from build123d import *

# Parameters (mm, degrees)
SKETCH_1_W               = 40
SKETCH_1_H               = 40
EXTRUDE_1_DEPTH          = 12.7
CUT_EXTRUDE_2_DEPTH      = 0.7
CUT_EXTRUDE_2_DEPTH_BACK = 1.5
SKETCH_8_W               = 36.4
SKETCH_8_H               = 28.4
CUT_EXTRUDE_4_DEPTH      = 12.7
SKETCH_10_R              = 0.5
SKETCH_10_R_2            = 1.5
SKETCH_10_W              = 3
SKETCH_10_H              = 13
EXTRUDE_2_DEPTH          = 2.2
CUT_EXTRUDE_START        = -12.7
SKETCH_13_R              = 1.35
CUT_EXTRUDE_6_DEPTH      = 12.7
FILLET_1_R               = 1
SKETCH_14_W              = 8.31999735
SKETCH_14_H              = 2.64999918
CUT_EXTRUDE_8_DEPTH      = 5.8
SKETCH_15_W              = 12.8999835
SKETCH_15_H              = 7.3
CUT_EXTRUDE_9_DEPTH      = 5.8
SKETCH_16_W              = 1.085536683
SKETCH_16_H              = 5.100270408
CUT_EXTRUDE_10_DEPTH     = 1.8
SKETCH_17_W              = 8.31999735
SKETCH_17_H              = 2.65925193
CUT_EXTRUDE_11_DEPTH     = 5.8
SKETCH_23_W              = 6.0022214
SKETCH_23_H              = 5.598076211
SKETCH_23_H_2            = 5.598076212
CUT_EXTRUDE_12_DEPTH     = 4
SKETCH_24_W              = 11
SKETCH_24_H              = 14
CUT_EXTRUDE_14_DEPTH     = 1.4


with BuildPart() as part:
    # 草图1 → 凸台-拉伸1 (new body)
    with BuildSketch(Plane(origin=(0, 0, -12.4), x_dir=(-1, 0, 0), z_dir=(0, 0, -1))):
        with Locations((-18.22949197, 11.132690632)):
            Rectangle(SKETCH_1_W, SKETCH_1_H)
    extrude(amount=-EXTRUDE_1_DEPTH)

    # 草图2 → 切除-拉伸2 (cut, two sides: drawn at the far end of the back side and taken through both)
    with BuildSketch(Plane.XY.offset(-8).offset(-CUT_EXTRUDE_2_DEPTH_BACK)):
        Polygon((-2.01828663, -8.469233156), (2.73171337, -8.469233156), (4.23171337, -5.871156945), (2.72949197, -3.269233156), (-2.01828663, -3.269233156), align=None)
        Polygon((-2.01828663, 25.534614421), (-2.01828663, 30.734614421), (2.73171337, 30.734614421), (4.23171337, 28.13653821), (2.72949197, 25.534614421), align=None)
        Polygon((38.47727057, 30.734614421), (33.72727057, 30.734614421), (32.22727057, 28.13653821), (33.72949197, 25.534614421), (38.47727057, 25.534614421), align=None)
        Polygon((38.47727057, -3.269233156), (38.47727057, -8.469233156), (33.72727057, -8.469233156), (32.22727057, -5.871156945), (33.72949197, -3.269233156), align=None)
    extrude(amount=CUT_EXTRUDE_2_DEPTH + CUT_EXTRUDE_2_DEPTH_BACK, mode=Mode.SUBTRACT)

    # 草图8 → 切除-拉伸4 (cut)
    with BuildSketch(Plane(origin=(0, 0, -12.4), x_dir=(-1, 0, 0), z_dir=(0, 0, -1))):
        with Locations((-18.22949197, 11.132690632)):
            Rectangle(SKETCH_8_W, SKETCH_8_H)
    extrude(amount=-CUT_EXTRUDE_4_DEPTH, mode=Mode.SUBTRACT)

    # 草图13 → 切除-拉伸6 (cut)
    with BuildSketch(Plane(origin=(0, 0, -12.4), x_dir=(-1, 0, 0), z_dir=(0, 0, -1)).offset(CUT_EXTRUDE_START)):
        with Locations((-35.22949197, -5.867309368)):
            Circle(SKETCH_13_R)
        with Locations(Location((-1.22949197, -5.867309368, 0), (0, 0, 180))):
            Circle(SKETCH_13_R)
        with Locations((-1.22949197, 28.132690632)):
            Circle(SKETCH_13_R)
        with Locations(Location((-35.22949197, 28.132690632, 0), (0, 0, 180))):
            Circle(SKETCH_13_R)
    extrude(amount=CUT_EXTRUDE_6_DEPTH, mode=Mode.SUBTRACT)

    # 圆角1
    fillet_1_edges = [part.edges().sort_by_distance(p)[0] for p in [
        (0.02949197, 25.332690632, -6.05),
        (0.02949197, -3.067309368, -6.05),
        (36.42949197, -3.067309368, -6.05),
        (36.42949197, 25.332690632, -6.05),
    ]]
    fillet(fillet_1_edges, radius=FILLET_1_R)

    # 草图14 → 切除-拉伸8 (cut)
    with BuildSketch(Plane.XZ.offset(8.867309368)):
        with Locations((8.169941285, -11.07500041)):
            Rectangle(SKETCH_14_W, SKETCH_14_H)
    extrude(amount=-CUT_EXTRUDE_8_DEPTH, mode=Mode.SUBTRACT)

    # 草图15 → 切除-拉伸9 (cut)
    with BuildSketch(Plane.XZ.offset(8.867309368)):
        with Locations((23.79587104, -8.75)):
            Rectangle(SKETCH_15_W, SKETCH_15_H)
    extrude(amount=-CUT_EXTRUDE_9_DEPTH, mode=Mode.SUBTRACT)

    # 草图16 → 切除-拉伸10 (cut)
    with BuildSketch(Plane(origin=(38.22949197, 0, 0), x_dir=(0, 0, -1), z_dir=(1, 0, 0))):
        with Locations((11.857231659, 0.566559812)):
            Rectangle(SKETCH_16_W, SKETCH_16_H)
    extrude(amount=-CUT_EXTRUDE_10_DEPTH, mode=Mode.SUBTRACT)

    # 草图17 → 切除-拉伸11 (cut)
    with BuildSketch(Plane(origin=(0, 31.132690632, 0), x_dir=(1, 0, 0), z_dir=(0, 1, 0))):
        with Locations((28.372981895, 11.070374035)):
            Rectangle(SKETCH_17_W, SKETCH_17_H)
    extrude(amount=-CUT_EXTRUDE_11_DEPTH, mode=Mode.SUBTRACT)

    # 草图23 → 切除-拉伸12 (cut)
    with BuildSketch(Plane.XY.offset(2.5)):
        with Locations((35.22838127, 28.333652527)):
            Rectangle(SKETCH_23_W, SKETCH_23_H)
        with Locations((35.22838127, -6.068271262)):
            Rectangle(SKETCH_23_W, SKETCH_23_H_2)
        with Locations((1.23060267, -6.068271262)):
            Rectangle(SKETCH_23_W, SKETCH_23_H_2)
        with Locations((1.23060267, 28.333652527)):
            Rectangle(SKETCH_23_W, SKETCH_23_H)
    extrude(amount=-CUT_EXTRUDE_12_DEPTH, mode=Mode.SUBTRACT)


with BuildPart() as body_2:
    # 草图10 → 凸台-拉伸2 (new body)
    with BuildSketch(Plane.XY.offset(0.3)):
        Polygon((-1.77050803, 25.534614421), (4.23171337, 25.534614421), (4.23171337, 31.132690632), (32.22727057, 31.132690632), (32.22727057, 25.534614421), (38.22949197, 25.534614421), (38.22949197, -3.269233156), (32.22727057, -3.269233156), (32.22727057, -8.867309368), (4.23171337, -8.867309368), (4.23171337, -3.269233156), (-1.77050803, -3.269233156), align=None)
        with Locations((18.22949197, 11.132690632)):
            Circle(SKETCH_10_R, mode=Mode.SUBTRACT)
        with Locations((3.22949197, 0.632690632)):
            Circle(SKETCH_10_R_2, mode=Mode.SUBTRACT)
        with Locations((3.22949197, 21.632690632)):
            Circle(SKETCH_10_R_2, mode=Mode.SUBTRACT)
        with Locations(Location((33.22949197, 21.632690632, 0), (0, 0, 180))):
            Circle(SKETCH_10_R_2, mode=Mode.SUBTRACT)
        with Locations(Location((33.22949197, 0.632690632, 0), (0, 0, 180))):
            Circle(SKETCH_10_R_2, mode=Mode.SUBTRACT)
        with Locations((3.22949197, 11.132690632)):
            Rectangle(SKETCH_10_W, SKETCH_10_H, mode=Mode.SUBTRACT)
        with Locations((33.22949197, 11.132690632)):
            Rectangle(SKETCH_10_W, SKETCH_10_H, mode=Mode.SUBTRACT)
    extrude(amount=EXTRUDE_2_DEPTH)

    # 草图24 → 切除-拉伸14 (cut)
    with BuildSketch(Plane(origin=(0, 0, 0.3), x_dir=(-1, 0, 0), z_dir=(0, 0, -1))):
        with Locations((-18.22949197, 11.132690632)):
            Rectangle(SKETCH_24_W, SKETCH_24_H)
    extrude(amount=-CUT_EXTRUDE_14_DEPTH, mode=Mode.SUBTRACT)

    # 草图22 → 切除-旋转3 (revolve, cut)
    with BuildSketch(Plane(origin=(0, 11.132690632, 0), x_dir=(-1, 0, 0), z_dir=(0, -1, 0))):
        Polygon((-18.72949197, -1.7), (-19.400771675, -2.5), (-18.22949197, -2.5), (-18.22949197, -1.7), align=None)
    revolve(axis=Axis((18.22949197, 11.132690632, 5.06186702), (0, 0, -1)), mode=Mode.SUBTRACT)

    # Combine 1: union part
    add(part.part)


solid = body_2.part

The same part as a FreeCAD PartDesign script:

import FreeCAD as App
import Part
import Sketcher

V = App.Vector
Q = App.Units.Quantity


def edges_at(feature, points):
    """Names of the edges that pass closest to the given points."""
    edges = feature.Shape.Edges
    near = lambda p: min(range(len(edges)), key=lambda i: edges[i].distToShape(Part.Vertex(*p))[0])
    return sorted({f"Edge{near(p) + 1}" for p in points})


def add_polygon(sketch, points):
    """Adds a closed chain of lines whose ends are joined by coincident constraints."""
    first, n = sketch.GeometryCount, len(points)
    for a, b in zip(points, points[1:] + points[:1]):
        sketch.addGeometry(Part.LineSegment(App.Vector(*a, 0), App.Vector(*b, 0)), False)
    for i in range(n):
        sketch.addConstraint(Sketcher.Constraint("Coincident", first + i, 2, first + (i + 1) % n, 1))

doc = App.newDocument("Part")
params = doc.addObject("Spreadsheet::Sheet", "Params")
for row, (alias, value) in enumerate([
    ("sketch1_width", "40 mm"),
    ("pad1_length", "12.7 mm"),
    ("sketch2_length", "3 mm"),
    ("sketch2_height", "5.2 mm"),
    ("sketch2_width", "4.75 mm"),
    ("pocket1_length", "0.7 mm"),
    ("pocket1_length2", "1.5 mm"),
    ("sketch3_width", "36.4 mm"),
    ("sketch3_height", "28.4 mm"),
    ("pocket2_length", "12.7 mm"),
    ("sketch4_diameter", "2.7 mm"),
    ("pocket3_length", "12.7 mm"),
    ("fillet_radius", "1 mm"),
    ("sketch5_height", "2.649999 mm"),
    ("pocket4_length", "5.8 mm"),
    ("sketch6_height", "7.3 mm"),
    ("pocket5_length", "5.8 mm"),
    ("pocket6_length", "1.8 mm"),
    ("pocket7_length", "5.8 mm"),
    ("pocket8_length", "4 mm"),
    ("sketch10_diameter", "3 mm"),
    ("sketch10_diameter2", "1 mm"),
    ("sketch10_width", "3 mm"),
    ("sketch10_height", "13 mm"),
    ("pad2_length", "2.2 mm"),
    ("sketch11_width", "11 mm"),
    ("sketch11_height", "14 mm"),
    ("pocket9_length", "1.4 mm"),
    ("sketch12_width", "0.5 mm"),
    ("sketch12_height", "0.8 mm"),
    ("groove_angle", "360 deg"),
], start=1):
    params.set(f"A{row}", alias)
    params.set(f"B{row}", "=" + value)
    params.setAlias(f"B{row}", alias)

body = doc.addObject("PartDesign::Body", "Body")

# Sketch on XY plane
sketch1 = body.newObject("Sketcher::SketchObject", "Sketch")
sketch1.AttachmentSupport = (doc.getObject("XY_Plane"), [""])
sketch1.MapMode = "FlatFace"
sketch1.AttachmentOffset = App.Placement(V(0, 0, -12.4), App.Rotation())
add_polygon(sketch1, [(38.229492, 31.132691), (38.229492, -8.867309), (-1.770508, -8.867309), (-1.770508, 31.132691)])  # lines 0-3
sketch1.addConstraint(Sketcher.Constraint("Vertical", 0))
sketch1.addConstraint(Sketcher.Constraint("Horizontal", 1))
sketch1.addConstraint(Sketcher.Constraint("Vertical", 2))
sketch1.addConstraint(Sketcher.Constraint("Horizontal", 3))
sketch1.addConstraint(Sketcher.Constraint("Equal", 3, 0))
sketch1.addConstraint(Sketcher.Constraint("DistanceX", 1, 2, 1, 1, Q("40 mm")))
sketch1.addConstraint(Sketcher.Constraint("DistanceX", -1, 1, 0, 2, Q("38.229492 mm")))
sketch1.addConstraint(Sketcher.Constraint("DistanceY", 0, 2, -1, 1, Q("8.867309 mm")))
sketch1.setExpression("Constraints[9]", "Params.sketch1_width")
pad1 = body.newObject("PartDesign::Pad", "Pad")
pad1.Profile = sketch1
pad1.setExpression("Length", "Params.pad1_length")

# Sketch on XY plane
sketch2 = body.newObject("Sketcher::SketchObject", "Sketch001")
sketch2.AttachmentSupport = (doc.getObject("XY_Plane"), [""])
sketch2.MapMode = "FlatFace"
sketch2.AttachmentOffset = App.Placement(V(0, 0, -8), App.Rotation())
add_polygon(sketch2, [(-2.018287, -8.469233), (2.731713, -8.469233), (4.231713, -5.871157), (2.729492, -3.269233), (-2.018287, -3.269233)])  # lines 0-4
add_polygon(sketch2, [(-2.018287, 30.734614), (-2.018287, 25.534614), (2.729492, 25.534614), (4.231713, 28.136538), (2.731713, 30.734614)])  # lines 5-9
add_polygon(sketch2, [(38.477271, 30.734614), (33.727271, 30.734614), (32.227271, 28.136538), (33.729492, 25.534614), (38.477271, 25.534614)])  # lines 10-14
add_polygon(sketch2, [(38.477271, -8.469233), (38.477271, -3.269233), (33.729492, -3.269233), (32.227271, -5.871157), (33.727271, -8.469233)])  # lines 15-19
sketch2.addConstraint(Sketcher.Constraint("Horizontal", 0))
sketch2.addConstraint(Sketcher.Constraint("Horizontal", 3))
sketch2.addConstraint(Sketcher.Constraint("Vertical", 4))
sketch2.addConstraint(Sketcher.Constraint("Vertical", 5))
sketch2.addConstraint(Sketcher.Constraint("Horizontal", 6))
sketch2.addConstraint(Sketcher.Constraint("Horizontal", 9))
sketch2.addConstraint(Sketcher.Constraint("Horizontal", 10))
sketch2.addConstraint(Sketcher.Constraint("Horizontal", 13))
sketch2.addConstraint(Sketcher.Constraint("Vertical", 14))
sketch2.addConstraint(Sketcher.Constraint("Vertical", 15))
sketch2.addConstraint(Sketcher.Constraint("Horizontal", 16))
sketch2.addConstraint(Sketcher.Constraint("Horizontal", 19))
sketch2.addConstraint(Sketcher.Constraint("Parallel", 1, 7))
sketch2.addConstraint(Sketcher.Constraint("Parallel", 2, 8))
sketch2.addConstraint(Sketcher.Constraint("Parallel", 7, 11))
sketch2.addConstraint(Sketcher.Constraint("Parallel", 8, 12))
sketch2.addConstraint(Sketcher.Constraint("Parallel", 11, 17))
sketch2.addConstraint(Sketcher.Constraint("Parallel", 12, 18))
sketch2.addConstraint(Sketcher.Constraint("Horizontal", 9, 2, 10, 2))
sketch2.addConstraint(Sketcher.Constraint("Horizontal", 7, 2, 11, 2))
sketch2.addConstraint(Sketcher.Constraint("Horizontal", 6, 2, 12, 2))
sketch2.addConstraint(Sketcher.Constraint("Horizontal", 3, 2, 15, 2))
sketch2.addConstraint(Sketcher.Constraint("Horizontal", 1, 2, 17, 2))
sketch2.addConstraint(Sketcher.Constraint("Horizontal", 4, 2, 18, 2))
sketch2.addConstraint(Sketcher.Constraint("Vertical", 4, 2, 5, 2))
sketch2.addConstraint(Sketcher.Constraint("Vertical", 2, 2, 6, 2))
sketch2.addConstraint(Sketcher.Constraint("Vertical", 1, 2, 7, 2))
sketch2.addConstraint(Sketcher.Constraint("Vertical", 0, 2, 8, 2))
sketch2.addConstraint(Sketcher.Constraint("Vertical", 14, 2, 15, 2))
sketch2.addConstraint(Sketcher.Constraint("Vertical", 12, 2, 16, 2))
sketch2.addConstraint(Sketcher.Constraint("Vertical", 11, 2, 17, 2))
sketch2.addConstraint(Sketcher.Constraint("Equal", 9, 10))
sketch2.addConstraint(Sketcher.Constraint("Angle", 1, Q("60 deg")))
sketch2.addConstraint(Sketcher.Constraint("Distance", 1, Q("3 mm")))
sketch2.addConstraint(Sketcher.Constraint("DistanceY", 4, 2, 4, 1, Q("5.2 mm")))
sketch2.addConstraint(Sketcher.Constraint("DistanceX", 6, 2, 12, 2, Q("31 mm")))
sketch2.addConstraint(Sketcher.Constraint("DistanceX", 0, 1, 0, 2, Q("4.75 mm")))
sketch2.addConstraint(Sketcher.Constraint("DistanceX", -1, 1, 2, 2, Q("2.729492 mm")))
sketch2.addConstraint(Sketcher.Constraint("DistanceY", -1, 1, 7, 2, Q("28.136538 mm")))
sketch2.addConstraint(Sketcher.Constraint("DistanceY", 1, 2, 5, 2, Q("31.405771 mm")))
sketch2.setExpression("Constraints[53]", "Params.sketch2_length")
sketch2.setExpression("Constraints[54]", "Params.sketch2_height")
sketch2.setExpression("Constraints[56]", "Params.sketch2_width")
pocket1 = body.newObject("PartDesign::Pocket", "Pocket")
pocket1.Profile = sketch2
pocket1.Type = "TwoLengths"
pocket1.setExpression("Length", "Params.pocket1_length")
pocket1.setExpression("Length2", "Params.pocket1_length2")
pocket1.Reversed = True

# Sketch on XY plane
sketch3 = body.newObject("Sketcher::SketchObject", "Sketch002")
sketch3.AttachmentSupport = (doc.getObject("XY_Plane"), [""])
sketch3.MapMode = "FlatFace"
sketch3.AttachmentOffset = App.Placement(V(0, 0, -12.4), App.Rotation())
add_polygon(sketch3, [(36.429492, 25.332691), (36.429492, -3.067309), (0.029492, -3.067309), (0.029492, 25.332691)])  # lines 0-3
sketch3.addConstraint(Sketcher.Constraint("Vertical", 0))
sketch3.addConstraint(Sketcher.Constraint("Horizontal", 1))
sketch3.addConstraint(Sketcher.Constraint("Vertical", 2))
sketch3.addConstraint(Sketcher.Constraint("Horizontal", 3))
sketch3.addConstraint(Sketcher.Constraint("DistanceX", 1, 2, 1, 1, Q("36.4 mm")))
sketch3.addConstraint(Sketcher.Constraint("DistanceY", 0, 2, 0, 1, Q("28.4 mm")))
sketch3.addConstraint(Sketcher.Constraint("DistanceX", -1, 1, 0, 2, Q("36.429492 mm")))
sketch3.addConstraint(Sketcher.Constraint("DistanceY", 0, 2, -1, 1, Q("3.067309 mm")))
sketch3.setExpression("Constraints[8]", "Params.sketch3_width")
sketch3.setExpression("Constraints[9]", "Params.sketch3_height")
pocket2 = body.newObject("PartDesign::Pocket", "Pocket001")
pocket2.Profile = sketch3
pocket2.setExpression("Length", "Params.pocket2_length")
pocket2.Reversed = True

# Sketch on XY plane
sketch4 = body.newObject("Sketcher::SketchObject", "Sketch003")
sketch4.AttachmentSupport = (doc.getObject("XY_Plane"), [""])
sketch4.MapMode = "FlatFace"
sketch4.AttachmentOffset = App.Placement(V(0, 0, 0.3), App.Rotation())
sketch4.addGeometry(Part.Circle(V(35.229492, -5.867309, 0), V(0, 0, 1), 1.35), False)
sketch4.addGeometry(Part.Circle(V(1.229492, -5.867309, 0), V(0, 0, 1), 1.35), False)
sketch4.addGeometry(Part.Circle(V(1.229492, 28.132691, 0), V(0, 0, 1), 1.35), False)
sketch4.addGeometry(Part.Circle(V(35.229492, 28.132691, 0), V(0, 0, 1), 1.35), False)
sketch4.addConstraint(Sketcher.Constraint("Equal", 0, 1))
sketch4.addConstraint(Sketcher.Constraint("Equal", 1, 2))
sketch4.addConstraint(Sketcher.Constraint("Equal", 2, 3))
sketch4.addConstraint(Sketcher.Constraint("Horizontal", 0, 3, 1, 3))
sketch4.addConstraint(Sketcher.Constraint("Horizontal", 2, 3, 3, 3))
sketch4.addConstraint(Sketcher.Constraint("Vertical", 1, 3, 2, 3))
sketch4.addConstraint(Sketcher.Constraint("Vertical", 0, 3, 3, 3))
sketch4.addConstraint(Sketcher.Constraint("Diameter", 0, Q("2.7 mm")))
sketch4.addConstraint(Sketcher.Constraint("DistanceX", 1, 3, 0, 3, Q("34 mm")))
sketch4.addConstraint(Sketcher.Constraint("DistanceY", 1, 3, 2, 3, Q("34 mm")))
sketch4.addConstraint(Sketcher.Constraint("DistanceX", -1, 1, 0, 3, Q("35.229492 mm")))
sketch4.addConstraint(Sketcher.Constraint("DistanceY", 0, 3, -1, 1, Q("5.867309 mm")))
sketch4.setExpression("Constraints[7]", "Params.sketch4_diameter")
pocket3 = body.newObject("PartDesign::Pocket", "Pocket002")
pocket3.Profile = sketch4
pocket3.setExpression("Length", "Params.pocket3_length")
doc.recompute()

fillet = body.newObject("PartDesign::Fillet", "Fillet")
fillet.Base = (pocket3, edges_at(pocket3, [
    (0.029, 25.333, -6.05),
    (0.029, -3.067, -6.05),
    (36.429, -3.067, -6.05),
    (36.429, 25.333, -6.05),
]))
fillet.setExpression("Radius", "Params.fillet_radius")

# Sketch on XZ plane
sketch5 = body.newObject("Sketcher::SketchObject", "Sketch004")
sketch5.AttachmentSupport = (doc.getObject("XZ_Plane"), [""])
sketch5.MapMode = "FlatFace"
sketch5.AttachmentOffset = App.Placement(V(0, 0, 8.867309), App.Rotation())
add_polygon(sketch5, [(4.009943, -9.750001), (4.009943, -12.4), (12.32994, -12.4), (12.32994, -9.750001)])  # lines 0-3
sketch5.addConstraint(Sketcher.Constraint("Vertical", 0))
sketch5.addConstraint(Sketcher.Constraint("Horizontal", 1))
sketch5.addConstraint(Sketcher.Constraint("Vertical", 2))
sketch5.addConstraint(Sketcher.Constraint("Horizontal", 3))
sketch5.addConstraint(Sketcher.Constraint("DistanceY", 0, 2, 0, 1, Q("2.649999 mm")))
sketch5.addConstraint(Sketcher.Constraint("DistanceY", 0, 2, -1, 1, Q("12.4 mm")))
sketch5.addConstraint(Sketcher.Constraint("DistanceX", 1, 1, 1, 2, Q("8.319997 mm")))
sketch5.addConstraint(Sketcher.Constraint("DistanceX", -1, 1, 1, 2, Q("12.32994 mm")))
sketch5.setExpression("Constraints[8]", "Params.sketch5_height")
pocket4 = body.newObject("PartDesign::Pocket", "Pocket003")
pocket4.Profile = sketch5
pocket4.setExpression("Length", "Params.pocket4_length")

# Sketch on XZ plane
sketch6 = body.newObject("Sketcher::SketchObject", "Sketch005")
sketch6.AttachmentSupport = (doc.getObject("XZ_Plane"), [""])
sketch6.MapMode = "FlatFace"
sketch6.AttachmentOffset = App.Placement(V(0, 0, 8.867309), App.Rotation())
add_polygon(sketch6, [(17.345879, -5.1), (17.345879, -12.4), (30.245863, -12.4), (30.245863, -5.1)])  # lines 0-3
sketch6.addConstraint(Sketcher.Constraint("Vertical", 0))
sketch6.addConstraint(Sketcher.Constraint("Horizontal", 1))
sketch6.addConstraint(Sketcher.Constraint("Vertical", 2))
sketch6.addConstraint(Sketcher.Constraint("Horizontal", 3))
sketch6.addConstraint(Sketcher.Constraint("DistanceY", 0, 2, 0, 1, Q("7.3 mm")))
sketch6.addConstraint(Sketcher.Constraint("DistanceY", 0, 2, -1, 1, Q("12.4 mm")))
sketch6.addConstraint(Sketcher.Constraint("DistanceX", 1, 1, 1, 2, Q("12.899984 mm")))
sketch6.addConstraint(Sketcher.Constraint("DistanceX", -1, 1, 0, 2, Q("17.345879 mm")))
sketch6.setExpression("Constraints[8]", "Params.sketch6_height")
pocket5 = body.newObject("PartDesign::Pocket", "Pocket004")
pocket5.Profile = sketch6
pocket5.setExpression("Length", "Params.pocket5_length")

# Sketch on YZ plane
sketch7 = body.newObject("Sketcher::SketchObject", "Sketch006")
sketch7.AttachmentSupport = (doc.getObject("YZ_Plane"), [""])
sketch7.MapMode = "FlatFace"
sketch7.AttachmentOffset = App.Placement(V(0, 0, 38.229492), App.Rotation())
add_polygon(sketch7, [(3.116695, -11.314463), (-1.983575, -11.314463), (-1.983575, -12.4), (3.116695, -12.4)])  # lines 0-3
sketch7.addConstraint(Sketcher.Constraint("Horizontal", 0))
sketch7.addConstraint(Sketcher.Constraint("Vertical", 1))
sketch7.addConstraint(Sketcher.Constraint("Horizontal", 2))
sketch7.addConstraint(Sketcher.Constraint("Vertical", 3))
sketch7.addConstraint(Sketcher.Constraint("DistanceY", 1, 2, -1, 1, Q("12.4 mm")))
sketch7.addConstraint(Sketcher.Constraint("DistanceX", 0, 2, 0, 1, Q("5.10027 mm")))
sketch7.addConstraint(Sketcher.Constraint("DistanceY", 1, 2, 1, 1, Q("1.085537 mm")))
sketch7.addConstraint(Sketcher.Constraint("DistanceX", 0, 2, -1, 1, Q("1.983575 mm")))
pocket6 = body.newObject("PartDesign::Pocket", "Pocket005")
pocket6.Profile = sketch7
pocket6.setExpression("Length", "Params.pocket6_length")

# Sketch on XZ plane
sketch8 = body.newObject("Sketcher::SketchObject", "Sketch007")
sketch8.AttachmentSupport = (doc.getObject("XZ_Plane"), [""])
sketch8.MapMode = "FlatFace"
sketch8.AttachmentOffset = App.Placement(V(0, 0, -31.132691), App.Rotation())
add_polygon(sketch8, [(24.212983, -12.4), (24.212983, -9.740748), (32.532981, -9.740748), (32.532981, -12.4)])  # lines 0-3
sketch8.addConstraint(Sketcher.Constraint("Vertical", 0))
sketch8.addConstraint(Sketcher.Constraint("Horizontal", 1))
sketch8.addConstraint(Sketcher.Constraint("Vertical", 2))
sketch8.addConstraint(Sketcher.Constraint("Horizontal", 3))
sketch8.addConstraint(Sketcher.Constraint("DistanceY", 2, 2, -1, 1, Q("12.4 mm")))
sketch8.addConstraint(Sketcher.Constraint("DistanceY", 0, 1, 0, 2, Q("2.659252 mm")))
sketch8.addConstraint(Sketcher.Constraint("DistanceX", 1, 1, 1, 2, Q("8.319997 mm")))
sketch8.addConstraint(Sketcher.Constraint("DistanceX", -1, 1, 1, 2, Q("32.532981 mm")))
pocket7 = body.newObject("PartDesign::Pocket", "Pocket006")
pocket7.Profile = sketch8
pocket7.setExpression("Length", "Params.pocket7_length")
pocket7.Reversed = True

# Sketch on XY plane
sketch9 = body.newObject("Sketcher::SketchObject", "Sketch008")
sketch9.AttachmentSupport = (doc.getObject("XY_Plane"), [""])
sketch9.MapMode = "FlatFace"
sketch9.AttachmentOffset = App.Placement(V(0, 0, 2.5), App.Rotation())
add_polygon(sketch9, [(32.227271, 31.132691), (32.227271, 25.534614), (38.229492, 25.534614), (38.229492, 31.132691)])  # lines 0-3
add_polygon(sketch9, [(32.227271, -3.269233), (32.227271, -8.867309), (38.229492, -8.867309), (38.229492, -3.269233)])  # lines 4-7
add_polygon(sketch9, [(-1.770508, -3.269233), (-1.770508, -8.867309), (4.231713, -8.867309), (4.231713, -3.269233)])  # lines 8-11
add_polygon(sketch9, [(-1.770508, 31.132691), (-1.770508, 25.534614), (4.231713, 25.534614), (4.231713, 31.132691)])  # lines 12-15
sketch9.addConstraint(Sketcher.Constraint("Vertical", 0))
sketch9.addConstraint(Sketcher.Constraint("Horizontal", 1))
sketch9.addConstraint(Sketcher.Constraint("Vertical", 2))
sketch9.addConstraint(Sketcher.Constraint("Horizontal", 3))
sketch9.addConstraint(Sketcher.Constraint("Vertical", 4))
sketch9.addConstraint(Sketcher.Constraint("Horizontal", 5))
sketch9.addConstraint(Sketcher.Constraint("Vertical", 6))
sketch9.addConstraint(Sketcher.Constraint("Horizontal", 7))
sketch9.addConstraint(Sketcher.Constraint("Vertical", 8))
sketch9.addConstraint(Sketcher.Constraint("Horizontal", 9))
sketch9.addConstraint(Sketcher.Constraint("Vertical", 10))
sketch9.addConstraint(Sketcher.Constraint("Horizontal", 11))
sketch9.addConstraint(Sketcher.Constraint("Vertical", 12))
sketch9.addConstraint(Sketcher.Constraint("Horizontal", 13))
sketch9.addConstraint(Sketcher.Constraint("Vertical", 14))
sketch9.addConstraint(Sketcher.Constraint("Horizontal", 15))
sketch9.addConstraint(Sketcher.Constraint("Horizontal", 5, 2, 8, 2))
sketch9.addConstraint(Sketcher.Constraint("Horizontal", 7, 2, 10, 2))
sketch9.addConstraint(Sketcher.Constraint("Horizontal", 1, 2, 12, 2))
sketch9.addConstraint(Sketcher.Constraint("Horizontal", 3, 2, 14, 2))
sketch9.addConstraint(Sketcher.Constraint("Vertical", 3, 2, 4, 2))
sketch9.addConstraint(Sketcher.Constraint("Vertical", 2, 2, 5, 2))
sketch9.addConstraint(Sketcher.Constraint("Vertical", 11, 2, 12, 2))
sketch9.addConstraint(Sketcher.Constraint("Vertical", 10, 2, 13, 2))
sketch9.addConstraint(Sketcher.Constraint("Equal", 7, 9))
sketch9.addConstraint(Sketcher.Constraint("Equal", 2, 4))
sketch9.addConstraint(Sketcher.Constraint("DistanceY", 4, 2, 3, 2, Q("40 mm")))
sketch9.addConstraint(Sketcher.Constraint("DistanceX", 8, 2, 5, 2, Q("40 mm")))
sketch9.addConstraint(Sketcher.Constraint("DistanceX", 1, 1, 1, 2, Q("6.002221 mm")))
sketch9.addConstraint(Sketcher.Constraint("DistanceY", 0, 2, 0, 1, Q("5.598076 mm")))
sketch9.addConstraint(Sketcher.Constraint("DistanceX", -1, 1, 0, 2, Q("32.227271 mm")))
sketch9.addConstraint(Sketcher.Constraint("DistanceY", -1, 1, 2, 2, Q("31.132691 mm")))
pocket8 = body.newObject("PartDesign::Pocket", "Pocket007")
pocket8.Profile = sketch9
pocket8.setExpression("Length", "Params.pocket8_length")
body2 = doc.addObject("PartDesign::Body", "Body001")

# Sketch on XY plane
sketch10 = body2.newObject("Sketcher::SketchObject", "Sketch009")
sketch10.AttachmentSupport = (doc.getObject("XY_Plane001"), [""])
sketch10.MapMode = "FlatFace"
sketch10.AttachmentOffset = App.Placement(V(0, 0, 0.3), App.Rotation())
add_polygon(sketch10, [(4.231713, 25.534614), (-1.770508, 25.534614), (-1.770508, -3.269233), (4.231713, -3.269233), (4.231713, -8.867309), (32.227271, -8.867309), (32.227271, -3.269233), (38.229492, -3.269233), (38.229492, 25.534614), (32.227271, 25.534614), (32.227271, 31.132691), (4.231713, 31.132691)])  # lines 0-11
sketch10.addGeometry(Part.Circle(V(33.229492, 0.632691, 0), V(0, 0, 1), 1.5), False)  # 12
sketch10.addGeometry(Part.Circle(V(3.229492, 0.632691, 0), V(0, 0, 1), 1.5), False)  # 13
add_polygon(sketch10, [(31.729492, 4.632691), (31.729492, 17.632691), (34.729492, 17.632691), (34.729492, 4.632691)])  # lines 14-17
sketch10.addGeometry(Part.Circle(V(18.229492, 11.132691, 0), V(0, 0, 1), 0.5), False)  # 18
sketch10.addGeometry(Part.Circle(V(33.229492, 21.632691, 0), V(0, 0, 1), 1.5), False)  # 19
add_polygon(sketch10, [(1.729492, 4.632691), (1.729492, 17.632691), (4.729492, 17.632691), (4.729492, 4.632691)])  # lines 20-23
sketch10.addGeometry(Part.Circle(V(3.229492, 21.632691, 0), V(0, 0, 1), 1.5), False)  # 24
sketch10.addConstraint(Sketcher.Constraint("Horizontal", 0))
sketch10.addConstraint(Sketcher.Constraint("Vertical", 1))
sketch10.addConstraint(Sketcher.Constraint("Horizontal", 2))
sketch10.addConstraint(Sketcher.Constraint("Vertical", 3))
sketch10.addConstraint(Sketcher.Constraint("Horizontal", 4))
sketch10.addConstraint(Sketcher.Constraint("Vertical", 5))
sketch10.addConstraint(Sketcher.Constraint("Horizontal", 6))
sketch10.addConstraint(Sketcher.Constraint("Vertical", 7))
sketch10.addConstraint(Sketcher.Constraint("Horizontal", 8))
sketch10.addConstraint(Sketcher.Constraint("Vertical", 9))
sketch10.addConstraint(Sketcher.Constraint("Horizontal", 10))
sketch10.addConstraint(Sketcher.Constraint("Vertical", 11))
sketch10.addConstraint(Sketcher.Constraint("Vertical", 14))
sketch10.addConstraint(Sketcher.Constraint("Horizontal", 15))
sketch10.addConstraint(Sketcher.Constraint("Vertical", 16))
sketch10.addConstraint(Sketcher.Constraint("Horizontal", 17))
sketch10.addConstraint(Sketcher.Constraint("Vertical", 20))
sketch10.addConstraint(Sketcher.Constraint("Horizontal", 21))
sketch10.addConstraint(Sketcher.Constraint("Vertical", 22))
sketch10.addConstraint(Sketcher.Constraint("Horizontal", 23))
sketch10.addConstraint(Sketcher.Constraint("Equal", 12, 13))
sketch10.addConstraint(Sketcher.Constraint("Equal", 13, 19))
sketch10.addConstraint(Sketcher.Constraint("Equal", 19, 24))
sketch10.addConstraint(Sketcher.Constraint("Horizontal", 12, 3, 13, 3))
sketch10.addConstraint(Sketcher.Constraint("Horizontal", 19, 3, 24, 3))
sketch10.addConstraint(Sketcher.Constraint("Horizontal", 2, 2, 5, 2))
sketch10.addConstraint(Sketcher.Constraint("Horizontal", 0, 2, 7, 2))
sketch10.addConstraint(Sketcher.Constraint("Horizontal", 15, 2, 20, 2))
sketch10.addConstraint(Sketcher.Constraint("Horizontal", 17, 2, 22, 2))
sketch10.addConstraint(Sketcher.Constraint("Vertical", 12, 3, 19, 3))
sketch10.addConstraint(Sketcher.Constraint("Vertical", 13, 3, 24, 3))
sketch10.addConstraint(Sketcher.Constraint("Vertical", 5, 2, 8, 2))
sketch10.addConstraint(Sketcher.Constraint("Vertical", 3, 2, 10, 2))
sketch10.addConstraint(Sketcher.Constraint("Equal", 2, 6))
sketch10.addConstraint(Sketcher.Constraint("Equal", 17, 21))
sketch10.addConstraint(Sketcher.Constraint("Equal", 5, 9))
sketch10.addConstraint(Sketcher.Constraint("Diameter", 12, Q("3 mm")))
sketch10.addConstraint(Sketcher.Constraint("Diameter", 18, Q("1 mm")))
sketch10.addConstraint(Sketcher.Constraint("DistanceX", 15, 1, 15, 2, Q("3 mm")))
sketch10.addConstraint(Sketcher.Constraint("DistanceY", 14, 1, 14, 2, Q("13 mm")))
sketch10.addConstraint(Sketcher.Constraint("DistanceX", 13, 3, 12, 3, Q("30 mm")))
sketch10.addConstraint(Sketcher.Constraint("DistanceX", 18, 3, 12, 3, Q("15 mm")))
sketch10.addConstraint(Sketcher.Constraint("DistanceY", 12, 3, 19, 3, Q("21 mm")))
sketch10.addConstraint(Sketcher.Constraint("DistanceX", 0, 2, 24, 3, Q("5 mm")))
sketch10.addConstraint(Sketcher.Constraint("DistanceY", 3, 2, 18, 3, Q("20 mm")))
sketch10.addConstraint(Sketcher.Constraint("DistanceX", 12, 3, 6, 2, Q("5 mm")))
sketch10.addConstraint(Sketcher.Constraint("DistanceY", 18, 3, 9, 2, Q("20 mm")))
sketch10.addConstraint(Sketcher.Constraint("DistanceY", 14, 2, 19, 3, Q("4 mm")))
sketch10.addConstraint(Sketcher.Constraint("DistanceY", 12, 3, 18, 3, Q("10.5 mm")))
sketch10.addConstraint(Sketcher.Constraint("DistanceX", 14, 2, 19, 3, Q("1.5 mm")))
sketch10.addConstraint(Sketcher.Constraint("DistanceX", 20, 2, 24, 3, Q("1.5 mm")))
sketch10.addConstraint(Sketcher.Constraint("DistanceX", 0, 2, 0, 1, Q("6.002221 mm")))
sketch10.addConstraint(Sketcher.Constraint("DistanceY", 1, 2, 1, 1, Q("28.803848 mm")))
sketch10.addConstraint(Sketcher.Constraint("DistanceX", -1, 1, 12, 3, Q("33.229492 mm")))
sketch10.addConstraint(Sketcher.Constraint("DistanceY", -1, 1, 12, 3, Q("0.632691 mm")))
sketch10.setExpression("Constraints[56]", "Params.sketch10_diameter")
sketch10.setExpression("Constraints[57]", "Params.sketch10_diameter2")
sketch10.setExpression("Constraints[58]", "Params.sketch10_width")
sketch10.setExpression("Constraints[59]", "Params.sketch10_height")
pad2 = body2.newObject("PartDesign::Pad", "Pad001")
pad2.Profile = sketch10
pad2.setExpression("Length", "Params.pad2_length")

# Sketch on XY plane
sketch11 = body2.newObject("Sketcher::SketchObject", "Sketch010")
sketch11.AttachmentSupport = (doc.getObject("XY_Plane001"), [""])
sketch11.MapMode = "FlatFace"
sketch11.AttachmentOffset = App.Placement(V(0, 0, 0.3), App.Rotation())
add_polygon(sketch11, [(23.729492, 18.132691), (23.729492, 4.132691), (12.729492, 4.132691), (12.729492, 18.132691)])  # lines 0-3
sketch11.addConstraint(Sketcher.Constraint("Vertical", 0))
sketch11.addConstraint(Sketcher.Constraint("Horizontal", 1))
sketch11.addConstraint(Sketcher.Constraint("Vertical", 2))
sketch11.addConstraint(Sketcher.Constraint("Horizontal", 3))
sketch11.addConstraint(Sketcher.Constraint("DistanceX", 1, 2, 1, 1, Q("11 mm")))
sketch11.addConstraint(Sketcher.Constraint("DistanceY", 0, 2, 0, 1, Q("14 mm")))
sketch11.addConstraint(Sketcher.Constraint("DistanceX", -1, 1, 0, 2, Q("23.729492 mm")))
sketch11.addConstraint(Sketcher.Constraint("DistanceY", -1, 1, 0, 2, Q("4.132691 mm")))
sketch11.setExpression("Constraints[8]", "Params.sketch11_width")
sketch11.setExpression("Constraints[9]", "Params.sketch11_height")
pocket9 = body2.newObject("PartDesign::Pocket", "Pocket008")
pocket9.Profile = sketch11
pocket9.setExpression("Length", "Params.pocket9_length")
pocket9.Reversed = True

# Sketch on XZ plane
sketch12 = body2.newObject("Sketcher::SketchObject", "Sketch011")
sketch12.AttachmentSupport = (doc.getObject("XZ_Plane001"), [""])
sketch12.MapMode = "FlatFace"
sketch12.AttachmentOffset = App.Placement(V(0, 0, -11.132691), App.Rotation())
add_polygon(sketch12, [(18.729492, 1.7), (19.400772, 2.5), (18.229492, 2.5), (18.229492, 1.7)])  # lines 0-3
sketch12.addGeometry(Part.LineSegment(V(18.229492, 2.5, 0), V(18.229492, 1.7, 0)), True)  # axis
sketch12.addConstraint(Sketcher.Constraint("Horizontal", 1))
sketch12.addConstraint(Sketcher.Constraint("Vertical", 2))
sketch12.addConstraint(Sketcher.Constraint("Horizontal", 3))
sketch12.addConstraint(Sketcher.Constraint("Vertical", 4))
sketch12.addConstraint(Sketcher.Constraint("Coincident", 4, 1, 1, 2))
sketch12.addConstraint(Sketcher.Constraint("Horizontal", 3, 2, 4, 2))
sketch12.addConstraint(Sketcher.Constraint("Angle", 0, Q("50 deg")))
sketch12.addConstraint(Sketcher.Constraint("DistanceX", 3, 1, 3, 2, Q("0.5 mm")))
sketch12.addConstraint(Sketcher.Constraint("DistanceY", 2, 2, 2, 1, Q("0.8 mm")))
sketch12.addConstraint(Sketcher.Constraint("DistanceY", -1, 1, 0, 2, Q("2.5 mm")))
sketch12.addConstraint(Sketcher.Constraint("DistanceX", -1, 1, 0, 2, Q("19.400772 mm")))
sketch12.setExpression("Constraints[11]", "Params.sketch12_width")
sketch12.setExpression("Constraints[12]", "Params.sketch12_height")
groove = body2.newObject("PartDesign::Groove", "Groove")
groove.Profile = sketch12
groove.ReferenceAxis = (sketch12, ["Axis0"])
groove.setExpression("Angle", "Params.groove_angle")
doc.recompute()

boolean = body2.newObject("PartDesign::Boolean", "Boolean")
boolean.Type = "Fuse"
boolean.addObjects([body])

doc.recompute()
